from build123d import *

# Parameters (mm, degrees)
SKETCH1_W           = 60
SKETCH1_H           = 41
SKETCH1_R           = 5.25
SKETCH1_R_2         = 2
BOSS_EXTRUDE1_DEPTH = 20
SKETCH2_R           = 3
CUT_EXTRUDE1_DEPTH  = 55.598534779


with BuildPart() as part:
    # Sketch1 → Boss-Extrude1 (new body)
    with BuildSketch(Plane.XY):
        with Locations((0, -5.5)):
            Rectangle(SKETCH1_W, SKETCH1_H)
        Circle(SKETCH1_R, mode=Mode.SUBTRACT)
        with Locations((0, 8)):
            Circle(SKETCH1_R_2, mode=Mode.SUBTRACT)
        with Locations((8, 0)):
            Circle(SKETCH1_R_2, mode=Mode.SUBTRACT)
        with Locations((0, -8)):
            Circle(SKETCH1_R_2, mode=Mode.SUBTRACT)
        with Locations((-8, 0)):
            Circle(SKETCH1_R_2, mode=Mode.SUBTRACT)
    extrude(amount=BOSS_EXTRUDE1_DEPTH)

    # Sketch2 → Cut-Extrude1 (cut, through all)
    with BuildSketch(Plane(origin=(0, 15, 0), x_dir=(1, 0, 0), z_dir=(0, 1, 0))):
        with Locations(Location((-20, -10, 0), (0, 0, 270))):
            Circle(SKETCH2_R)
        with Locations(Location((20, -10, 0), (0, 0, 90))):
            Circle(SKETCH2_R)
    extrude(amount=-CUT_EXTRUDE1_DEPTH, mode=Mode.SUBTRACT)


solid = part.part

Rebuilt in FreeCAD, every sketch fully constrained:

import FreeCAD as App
import Part
import Sketcher
Q = App.Units.Quantity

doc = App.newDocument("Part")
body = doc.addObject("PartDesign::Body", "Body")

sketch1 = doc.addObject("Sketcher::SketchObject", "Sketch")
body.addObject(sketch1)
sketch1.AttachmentSupport = (doc.XY_Plane, [""])
sketch1.MapMode = "FlatFace"
sketch1.addGeometry([
    Part.LineSegment(App.Vector(-30, 15, 0), App.Vector(-30, -26, 0)),
    Part.LineSegment(App.Vector(-30, -26, 0), App.Vector(30, -26, 0)),
    Part.LineSegment(App.Vector(30, -26, 0), App.Vector(30, 15, 0)),
    Part.LineSegment(App.Vector(30, 15, 0), App.Vector(-30, 15, 0)),
    Part.Circle(App.Vector(0, -8, 0), App.Vector(0, 0, 1), 2),
    Part.Circle(App.Vector(-8, 0, 0), App.Vector(0, 0, 1), 2),
    Part.Circle(App.Vector(0, 0, 0), App.Vector(0, 0, 1), 5.2),
    Part.Circle(App.Vector(8, 0, 0), App.Vector(0, 0, 1), 2),
    Part.Circle(App.Vector(0, 8, 0), App.Vector(0, 0, 1), 2),
], False)
sketch1.addConstraint([
    Sketcher.Constraint("Coincident", 0, 2, 1, 1),
    Sketcher.Constraint("Coincident", 1, 2, 2, 1),
    Sketcher.Constraint("Coincident", 2, 2, 3, 1),
    Sketcher.Constraint("Coincident", 3, 2, 0, 1),
    Sketcher.Constraint("Vertical", 0),
    Sketcher.Constraint("Horizontal", 1),
    Sketcher.Constraint("Vertical", 2),
    Sketcher.Constraint("Horizontal", 3),
    Sketcher.Constraint("Coincident", 6, 3, -1, 1),
    Sketcher.Constraint("Equal", 4, 5),
    Sketcher.Constraint("Equal", 5, 7),
    Sketcher.Constraint("Equal", 7, 8),
    Sketcher.Constraint("Symmetric", 5, 3, 7, 3, -1, 1),
    Sketcher.Constraint("Symmetric", 4, 3, 8, 3, -1, 1),
    Sketcher.Constraint("PointOnObject", 4, 3, -2),
    Sketcher.Constraint("PointOnObject", 5, 3, -1),
    Sketcher.Constraint("Diameter", 4, Q("4 mm")),
    Sketcher.Constraint("Diameter", 6, Q("10.5 mm")),
    Sketcher.Constraint("DistanceX", 1, 1, 1, 2, Q("60 mm")),
    Sketcher.Constraint("DistanceY", 0, 2, 0, 1, Q("41 mm")),
    Sketcher.Constraint("DistanceY", 4, 3, -1, 1, Q("8 mm")),
    Sketcher.Constraint("DistanceX", 5, 3, -1, 1, Q("8 mm")),
    Sketcher.Constraint("DistanceX", 0, 2, -1, 1, Q("30 mm")),
    Sketcher.Constraint("DistanceY", 0, 2, -1, 1, Q("26 mm")),
])
pad1 = doc.addObject("PartDesign::Pad", "Pad")
body.addObject(pad1)
pad1.Profile = sketch1
pad1.Length = 20

sketch2 = doc.addObject("Sketcher::SketchObject", "Sketch001")
body.addObject(sketch2)
sketch2.AttachmentSupport = (doc.XZ_Plane, [""])
sketch2.MapMode = "FlatFace"
sketch2.AttachmentOffset = App.Placement(App.Vector(0, 0, -15), App.Rotation())
sketch2.addGeometry([
    Part.Circle(App.Vector(-20, 10, 0), App.Vector(0, 0, 1), 3),
    Part.Circle(App.Vector(20, 10, 0), App.Vector(0, 0, 1), 3),
], False)
sketch2.addConstraint([
    Sketcher.Constraint("Equal", 0, 1),
    Sketcher.Constraint("Symmetric", 0, 3, 1, 3, -2),
    Sketcher.Constraint("Diameter", 0, Q("6 mm")),
    Sketcher.Constraint("DistanceX", 0, 3, -1, 1, Q("20 mm")),
    Sketcher.Constraint("DistanceY", -1, 1, 0, 3, Q("10 mm")),
])
pocket1 = doc.addObject("PartDesign::Pocket", "Pocket")
body.addObject(pocket1)
pocket1.Profile = sketch2
pocket1.Type = "ThroughAll"
pocket1.Reversed = True

doc.recompute()
